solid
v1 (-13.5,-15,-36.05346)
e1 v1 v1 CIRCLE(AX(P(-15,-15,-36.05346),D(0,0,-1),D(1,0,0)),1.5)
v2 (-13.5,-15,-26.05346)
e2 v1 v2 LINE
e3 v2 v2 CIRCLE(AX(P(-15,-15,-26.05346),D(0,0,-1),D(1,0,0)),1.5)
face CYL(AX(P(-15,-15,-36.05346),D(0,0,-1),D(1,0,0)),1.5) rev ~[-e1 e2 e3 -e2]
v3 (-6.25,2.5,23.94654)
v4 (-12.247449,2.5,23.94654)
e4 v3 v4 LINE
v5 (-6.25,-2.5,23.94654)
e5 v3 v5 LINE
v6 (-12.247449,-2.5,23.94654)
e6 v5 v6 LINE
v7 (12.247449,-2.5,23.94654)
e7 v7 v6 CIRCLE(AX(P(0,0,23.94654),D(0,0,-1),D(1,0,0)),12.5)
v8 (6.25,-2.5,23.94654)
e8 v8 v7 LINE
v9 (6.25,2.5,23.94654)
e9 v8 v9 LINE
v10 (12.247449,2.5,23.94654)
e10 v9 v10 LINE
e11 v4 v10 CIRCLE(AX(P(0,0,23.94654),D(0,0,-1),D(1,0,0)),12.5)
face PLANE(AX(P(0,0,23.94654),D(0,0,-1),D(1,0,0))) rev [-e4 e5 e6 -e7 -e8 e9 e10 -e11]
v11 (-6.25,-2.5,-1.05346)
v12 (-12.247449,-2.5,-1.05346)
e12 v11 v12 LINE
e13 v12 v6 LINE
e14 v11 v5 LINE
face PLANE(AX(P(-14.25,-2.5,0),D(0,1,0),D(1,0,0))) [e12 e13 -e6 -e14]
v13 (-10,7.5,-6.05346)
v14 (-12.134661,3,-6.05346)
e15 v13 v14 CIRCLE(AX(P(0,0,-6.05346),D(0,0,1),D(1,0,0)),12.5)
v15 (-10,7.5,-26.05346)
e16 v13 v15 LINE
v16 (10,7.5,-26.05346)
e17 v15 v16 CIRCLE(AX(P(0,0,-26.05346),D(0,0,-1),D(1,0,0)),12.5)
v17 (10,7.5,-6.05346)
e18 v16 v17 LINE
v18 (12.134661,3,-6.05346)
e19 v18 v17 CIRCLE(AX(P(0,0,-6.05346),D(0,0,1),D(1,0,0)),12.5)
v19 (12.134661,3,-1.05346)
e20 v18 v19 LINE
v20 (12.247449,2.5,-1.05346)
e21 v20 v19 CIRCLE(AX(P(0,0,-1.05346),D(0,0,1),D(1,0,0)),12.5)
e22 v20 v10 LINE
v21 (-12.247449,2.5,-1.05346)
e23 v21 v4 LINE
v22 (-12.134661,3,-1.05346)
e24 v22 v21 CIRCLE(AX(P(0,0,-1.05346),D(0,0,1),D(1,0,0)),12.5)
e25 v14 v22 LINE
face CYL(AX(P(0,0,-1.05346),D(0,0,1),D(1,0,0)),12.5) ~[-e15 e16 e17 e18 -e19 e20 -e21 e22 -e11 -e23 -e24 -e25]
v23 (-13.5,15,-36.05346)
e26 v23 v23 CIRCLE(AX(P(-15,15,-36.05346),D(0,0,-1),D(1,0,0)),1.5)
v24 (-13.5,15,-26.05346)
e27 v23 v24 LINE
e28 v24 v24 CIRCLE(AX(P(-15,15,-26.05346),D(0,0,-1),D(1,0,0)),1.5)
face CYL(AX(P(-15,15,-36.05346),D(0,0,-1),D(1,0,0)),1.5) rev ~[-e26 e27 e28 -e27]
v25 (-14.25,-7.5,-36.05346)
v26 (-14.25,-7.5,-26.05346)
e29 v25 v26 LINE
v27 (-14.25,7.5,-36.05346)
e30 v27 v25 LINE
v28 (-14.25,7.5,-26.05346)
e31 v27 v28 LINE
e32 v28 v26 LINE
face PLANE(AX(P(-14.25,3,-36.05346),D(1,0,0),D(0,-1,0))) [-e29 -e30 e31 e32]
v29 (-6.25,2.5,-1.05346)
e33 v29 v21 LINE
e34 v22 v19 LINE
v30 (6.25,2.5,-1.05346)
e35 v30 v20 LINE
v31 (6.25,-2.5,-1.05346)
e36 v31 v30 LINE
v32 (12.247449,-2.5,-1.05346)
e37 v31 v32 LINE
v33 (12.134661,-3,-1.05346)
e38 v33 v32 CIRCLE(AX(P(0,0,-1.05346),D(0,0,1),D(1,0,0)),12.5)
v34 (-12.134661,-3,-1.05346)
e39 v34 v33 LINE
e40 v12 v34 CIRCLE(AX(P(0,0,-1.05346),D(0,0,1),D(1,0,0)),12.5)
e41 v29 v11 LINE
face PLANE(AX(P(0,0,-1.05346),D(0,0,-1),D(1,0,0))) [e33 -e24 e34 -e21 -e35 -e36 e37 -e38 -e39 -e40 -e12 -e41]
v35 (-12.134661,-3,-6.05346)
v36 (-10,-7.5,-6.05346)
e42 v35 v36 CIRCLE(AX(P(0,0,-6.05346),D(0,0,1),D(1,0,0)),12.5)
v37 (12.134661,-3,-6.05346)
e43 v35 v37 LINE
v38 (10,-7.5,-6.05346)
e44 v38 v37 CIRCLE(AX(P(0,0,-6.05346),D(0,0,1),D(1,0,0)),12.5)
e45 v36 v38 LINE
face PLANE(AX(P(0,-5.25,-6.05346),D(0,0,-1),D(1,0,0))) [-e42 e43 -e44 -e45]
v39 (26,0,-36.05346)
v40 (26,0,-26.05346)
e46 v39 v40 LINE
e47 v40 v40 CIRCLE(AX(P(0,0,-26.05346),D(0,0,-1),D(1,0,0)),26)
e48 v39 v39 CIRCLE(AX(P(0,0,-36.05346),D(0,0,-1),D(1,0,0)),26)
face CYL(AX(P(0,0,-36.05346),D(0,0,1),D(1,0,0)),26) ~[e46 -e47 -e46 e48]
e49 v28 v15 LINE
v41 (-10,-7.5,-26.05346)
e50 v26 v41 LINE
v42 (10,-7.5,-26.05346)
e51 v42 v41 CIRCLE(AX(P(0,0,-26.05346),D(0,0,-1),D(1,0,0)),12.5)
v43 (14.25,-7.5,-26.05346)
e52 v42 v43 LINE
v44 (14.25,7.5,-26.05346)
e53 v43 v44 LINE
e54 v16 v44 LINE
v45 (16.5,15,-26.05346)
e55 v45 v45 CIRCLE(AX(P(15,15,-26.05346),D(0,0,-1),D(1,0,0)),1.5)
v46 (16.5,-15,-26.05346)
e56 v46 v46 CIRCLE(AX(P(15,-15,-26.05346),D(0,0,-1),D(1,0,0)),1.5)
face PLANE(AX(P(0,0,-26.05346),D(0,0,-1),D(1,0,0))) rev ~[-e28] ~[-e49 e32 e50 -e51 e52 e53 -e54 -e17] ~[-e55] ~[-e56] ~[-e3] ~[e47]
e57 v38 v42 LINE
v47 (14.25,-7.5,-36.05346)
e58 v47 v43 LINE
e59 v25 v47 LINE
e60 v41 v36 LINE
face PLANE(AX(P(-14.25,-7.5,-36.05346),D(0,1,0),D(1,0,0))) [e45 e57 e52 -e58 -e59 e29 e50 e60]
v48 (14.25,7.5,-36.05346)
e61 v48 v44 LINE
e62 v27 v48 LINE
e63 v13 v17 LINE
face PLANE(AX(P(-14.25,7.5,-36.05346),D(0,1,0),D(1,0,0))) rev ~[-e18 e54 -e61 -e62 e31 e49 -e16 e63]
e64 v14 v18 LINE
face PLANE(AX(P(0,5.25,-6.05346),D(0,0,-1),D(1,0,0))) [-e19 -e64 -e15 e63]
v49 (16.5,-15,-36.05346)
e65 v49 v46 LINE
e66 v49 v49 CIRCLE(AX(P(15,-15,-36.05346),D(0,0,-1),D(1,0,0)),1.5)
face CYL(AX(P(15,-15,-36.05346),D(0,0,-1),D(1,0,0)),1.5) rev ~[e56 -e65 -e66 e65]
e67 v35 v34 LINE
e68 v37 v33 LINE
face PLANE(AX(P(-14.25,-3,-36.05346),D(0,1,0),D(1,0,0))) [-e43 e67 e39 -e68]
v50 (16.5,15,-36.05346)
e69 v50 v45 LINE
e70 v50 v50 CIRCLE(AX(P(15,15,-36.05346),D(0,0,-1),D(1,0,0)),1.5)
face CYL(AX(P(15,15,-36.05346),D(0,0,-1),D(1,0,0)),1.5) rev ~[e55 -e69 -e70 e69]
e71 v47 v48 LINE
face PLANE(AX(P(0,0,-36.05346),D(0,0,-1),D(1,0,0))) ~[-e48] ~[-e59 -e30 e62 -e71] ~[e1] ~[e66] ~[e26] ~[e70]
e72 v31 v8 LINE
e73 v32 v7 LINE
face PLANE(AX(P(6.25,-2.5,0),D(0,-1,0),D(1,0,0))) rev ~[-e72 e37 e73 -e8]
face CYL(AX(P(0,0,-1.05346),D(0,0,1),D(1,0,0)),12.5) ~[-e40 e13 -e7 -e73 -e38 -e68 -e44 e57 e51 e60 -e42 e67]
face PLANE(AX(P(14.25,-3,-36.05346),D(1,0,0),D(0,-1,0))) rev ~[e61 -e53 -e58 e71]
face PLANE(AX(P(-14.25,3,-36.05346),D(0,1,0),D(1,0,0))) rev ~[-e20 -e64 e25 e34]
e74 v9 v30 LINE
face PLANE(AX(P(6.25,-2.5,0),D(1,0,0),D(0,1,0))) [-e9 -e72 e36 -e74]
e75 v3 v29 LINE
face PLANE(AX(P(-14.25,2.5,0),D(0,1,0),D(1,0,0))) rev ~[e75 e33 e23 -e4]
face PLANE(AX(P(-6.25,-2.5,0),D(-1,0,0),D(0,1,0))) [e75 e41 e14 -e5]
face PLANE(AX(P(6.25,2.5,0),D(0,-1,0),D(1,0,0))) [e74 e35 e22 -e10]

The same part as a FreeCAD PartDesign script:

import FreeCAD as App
import Part
import Sketcher

V = App.Vector

doc = App.newDocument("Part")
body = doc.addObject("PartDesign::Body", "Body")

sketch1 = doc.addObject("Sketcher::SketchObject", "Sketch")
body.addObject(sketch1)
sketch1.AttachmentSupport = (doc.XZ_Plane, [""])
sketch1.MapMode = "FlatFace"
sketch1.addGeometry([
    Part.LineSegment(V(0, 24, 0), V(0, -36, 0)),
    Part.LineSegment(V(0, -36, 0), V(26, -36, 0)),
    Part.LineSegment(V(26, -36, 0), V(26, -26, 0)),
    Part.LineSegment(V(26, -26, 0), V(12, -26, 0)),
    Part.LineSegment(V(12, -26, 0), V(12, 24, 0)),
    Part.LineSegment(V(12, 24, 0), V(0, 24, 0)),
], False)
sketch1.addConstraint([
    Sketcher.Constraint("Coincident", 0, 2, 1, 1),
    Sketcher.Constraint("Coincident", 1, 2, 2, 1),
    Sketcher.Constraint("Coincident", 2, 2, 3, 1),
    Sketcher.Constraint("Coincident", 3, 2, 4, 1),
    Sketcher.Constraint("Coincident", 4, 2, 5, 1),
    Sketcher.Constraint("Coincident", 5, 2, 0, 1),
    Sketcher.Constraint("Vertical", 0),
    Sketcher.Constraint("Horizontal", 1),
    Sketcher.Constraint("Vertical", 2),
    Sketcher.Constraint("Horizontal", 3),
    Sketcher.Constraint("Vertical", 4),
    Sketcher.Constraint("Horizontal", 5),
    Sketcher.Constraint("PointOnObject", 0, 2, -2),
    Sketcher.Constraint("DistanceX", 1, 1, 1, 2, 26.0),
    Sketcher.Constraint("DistanceY", 0, 2, 0, 1, 60.0),
    Sketcher.Constraint("DistanceY", 2, 1, 2, 2, 10.0),
    Sketcher.Constraint("DistanceX", 3, 2, 3, 1, 13.5),
    Sketcher.Constraint("DistanceY", 0, 2, -1, 1, 36.05346),
])
revolution = doc.addObject("PartDesign::Revolution", "Revolution")
body.addObject(revolution)
revolution.Profile = sketch1
revolution.ReferenceAxis = (sketch1, ["V_Axis"])
revolution.Angle = 360

sketch2 = doc.addObject("Sketcher::SketchObject", "Sketch001")
body.addObject(sketch2)
sketch2.AttachmentSupport = (doc.XY_Plane, [""])
sketch2.MapMode = "FlatFace"
sketch2.addGeometry([
    Part.LineSegment(V(-14, 2, 0), V(-14, -2, 0)),
    Part.LineSegment(V(-14, -2, 0), V(-6, -2, 0)),
    Part.LineSegment(V(-6, -2, 0), V(-6, 2, 0)),
    Part.LineSegment(V(-6, 2, 0), V(-14, 2, 0)),
    Part.LineSegment(V(6, 2, 0), V(6, -2, 0)),
    Part.LineSegment(V(6, -2, 0), V(14, -2, 0)),
    Part.LineSegment(V(14, -2, 0), V(14, 2, 0)),
    Part.LineSegment(V(14, 2, 0), V(6, 2, 0)),
], False)
sketch2.addConstraint([
    Sketcher.Constraint("Coincident", 0, 2, 1, 1),
    Sketcher.Constraint("Coincident", 1, 2, 2, 1),
    Sketcher.Constraint("Coincident", 2, 2, 3, 1),
    Sketcher.Constraint("Coincident", 3, 2, 0, 1),
    Sketcher.Constraint("Coincident", 4, 2, 5, 1),
    Sketcher.Constraint("Coincident", 5, 2, 6, 1),
    Sketcher.Constraint("Coincident", 6, 2, 7, 1),
    Sketcher.Constraint("Coincident", 7, 2, 4, 1),
    Sketcher.Constraint("Vertical", 0),
    Sketcher.Constraint("Horizontal", 1),
    Sketcher.Constraint("Vertical", 2),
    Sketcher.Constraint("Horizontal", 3),
    Sketcher.Constraint("Vertical", 4),
    Sketcher.Constraint("Horizontal", 5),
    Sketcher.Constraint("Vertical", 6),
    Sketcher.Constraint("Horizontal", 7),
    Sketcher.Constraint("Symmetric", 2, 2, 4, 2, -1, 1),
    Sketcher.Constraint("Symmetric", 0, 2, 6, 2, -1, 1),
    Sketcher.Constraint("Horizontal", 1, 2, 4, 2),
    Sketcher.Constraint("DistanceX", 1, 1, 1, 2, 8.0),
    Sketcher.Constraint("DistanceY", 0, 2, 0, 1, 5.0),
    Sketcher.Constraint("DistanceX", 1, 2, 4, 2, 12.5),
])
pocket1 = doc.addObject("PartDesign::Pocket", "Pocket")
body.addObject(pocket1)
pocket1.Profile = sketch2
pocket1.Length = 75
pocket1.Midplane = True

sketch3 = doc.addObject("Sketcher::SketchObject", "Sketch002")
body.addObject(sketch3)
sketch3.AttachmentSupport = (doc.XY_Plane, [""])
sketch3.MapMode = "FlatFace"
sketch3.AttachmentOffset = App.Placement(V(0, 0, -36.05346), App.Rotation())
sketch3.addGeometry([
    Part.LineSegment(V(-14, -3, 0), V(-14, 3, 0)),
    Part.LineSegment(V(-14, 3, 0), V(14, 3, 0)),
    Part.LineSegment(V(14, 3, 0), V(14, -3, 0)),
    Part.LineSegment(V(14, -3, 0), V(-14, -3, 0)),
], False)
sketch3.addConstraint([
    Sketcher.Constraint("Coincident", 0, 2, 1, 1),
    Sketcher.Constraint("Coincident", 1, 2, 2, 1),
    Sketcher.Constraint("Coincident", 2, 2, 3, 1),
    Sketcher.Constraint("Coincident", 3, 2, 0, 1),
    Sketcher.Constraint("Vertical", 0),
    Sketcher.Constraint("Horizontal", 1),
    Sketcher.Constraint("Vertical", 2),
    Sketcher.Constraint("Horizontal", 3),
    Sketcher.Constraint("Symmetric", 0, 2, 2, 2, -1, 1),
    Sketcher.Constraint("DistanceY", 0, 1, 0, 2, 6.0),
    Sketcher.Constraint("DistanceX", 1, 1, 1, 2, 28.5),
])
pocket2 = doc.addObject("PartDesign::Pocket", "Pocket001")
body.addObject(pocket2)
pocket2.Profile = sketch3
pocket2.Length = 35
pocket2.Reversed = True

sketch4 = doc.addObject("Sketcher::SketchObject", "Sketch003")
body.addObject(sketch4)
sketch4.AttachmentSupport = (doc.XY_Plane, [""])
sketch4.MapMode = "FlatFace"
sketch4.AttachmentOffset = App.Placement(V(0, 0, -36.05346), App.Rotation())
sketch4.addGeometry([
    Part.LineSegment(V(-14.2, -7.5, 0), V(-14.2, -3, 0)),
    Part.LineSegment(V(-14.2, -3, 0), V(14.2, -3, 0)),
    Part.LineSegment(V(14.2, -3, 0), V(14.2, -7.5, 0)),
    Part.LineSegment(V(14.2, -7.5, 0), V(-14.2, -7.5, 0)),
    Part.LineSegment(V(-14.2, 3, 0), V(-14.2, 7.5, 0)),
    Part.LineSegment(V(-14.2, 7.5, 0), V(14.2, 7.5, 0)),
    Part.LineSegment(V(14.2, 7.5, 0), V(14.2, 3, 0)),
    Part.LineSegment(V(14.2, 3, 0), V(-14.2, 3, 0)),
], False)
sketch4.addConstraint([
    Sketcher.Constraint("Coincident", 0, 2, 1, 1),
    Sketcher.Constraint("Coincident", 1, 2, 2, 1),
    Sketcher.Constraint("Coincident", 2, 2, 3, 1),
    Sketcher.Constraint("Coincident", 3, 2, 0, 1),
    Sketcher.Constraint("Coincident", 4, 2, 5, 1),
    Sketcher.Constraint("Coincident", 5, 2, 6, 1),
    Sketcher.Constraint("Coincident", 6, 2, 7, 1),
    Sketcher.Constraint("Coincident", 7, 2, 4, 1),
    Sketcher.Constraint("Vertical", 0),
    Sketcher.Constraint("Horizontal", 1),
    Sketcher.Constraint("Vertical", 2),
    Sketcher.Constraint("Horizontal", 3),
    Sketcher.Constraint("Vertical", 4),
    Sketcher.Constraint("Horizontal", 5),
    Sketcher.Constraint("Vertical", 6),
    Sketcher.Constraint("Horizontal", 7),
    Sketcher.Constraint("Symmetric", 2, 2, 4, 2, -1, 1),
    Sketcher.Constraint("Symmetric", 0, 2, 6, 2, -1, 1),
    Sketcher.Constraint("Vertical", 3, 2, 4, 2),
    Sketcher.Constraint("DistanceX", 1, 1, 1, 2, 28.5),
    Sketcher.Constraint("DistanceY", 0, 1, 0, 2, 4.5),
    Sketcher.Constraint("DistanceY", 0, 2, -1, 1, 3.0),
])
pocket3 = doc.addObject("PartDesign::Pocket", "Pocket002")
body.addObject(pocket3)
pocket3.Profile = sketch4
pocket3.Length = 30
pocket3.Reversed = True

sketch5 = doc.addObject("Sketcher::SketchObject", "Sketch004")
body.addObject(sketch5)
sketch5.AttachmentSupport = (doc.XY_Plane, [""])
sketch5.MapMode = "FlatFace"
sketch5.AttachmentOffset = App.Placement(V(0, 0, -36.05346), App.Rotation())
sketch5.addGeometry([
    Part.LineSegment(V(-14.2, -7.5, 0), V(-14.2, 7.5, 0)),
    Part.LineSegment(V(-14.2, 7.5, 0), V(14.2, 7.5, 0)),
    Part.LineSegment(V(14.2, 7.5, 0), V(14.2, -7.5, 0)),
    Part.LineSegment(V(14.2, -7.5, 0), V(-14.2, -7.5, 0)),
    Part.Circle(V(15, 15, 0), V(0, 0, 1), 1.5),
    Part.Circle(V(-15, 15, 0), V(0, 0, 1), 1.5),
    Part.Circle(V(15, -15, 0), V(0, 0, 1), 1.5),
    Part.Circle(V(-15, -15, 0), V(0, 0, 1), 1.5),
], False)
sketch5.addConstraint([
    Sketcher.Constraint("Coincident", 0, 2, 1, 1),
    Sketcher.Constraint("Coincident", 1, 2, 2, 1),
    Sketcher.Constraint("Coincident", 2, 2, 3, 1),
    Sketcher.Constraint("Coincident", 3, 2, 0, 1),
    Sketcher.Constraint("Vertical", 0),
    Sketcher.Constraint("Horizontal", 1),
    Sketcher.Constraint("Vertical", 2),
    Sketcher.Constraint("Horizontal", 3),
    Sketcher.Constraint("Equal", 4, 5),
    Sketcher.Constraint("Equal", 5, 6),
    Sketcher.Constraint("Equal", 6, 7),
    Sketcher.Constraint("Symmetric", 5, 3, 6, 3, -1, 1),
    Sketcher.Constraint("Symmetric", 4, 3, 7, 3, -1, 1),
    Sketcher.Constraint("Symmetric", 0, 2, 2, 2, -1, 1),
    Sketcher.Constraint("Symmetric", 4, 3, 5, 3, -2),
    Sketcher.Constraint("Diameter", 4, 3.0),
    Sketcher.Constraint("DistanceY", 0, 1, 0, 2, 15.0),
    Sketcher.Constraint("DistanceX", 1, 1, 1, 2, 28.5),
    Sketcher.Constraint("DistanceX", -1, 1, 4, 3, 15.0),
    Sketcher.Constraint("DistanceY", -1, 1, 4, 3, 15.0),
])
pocket4 = doc.addObject("PartDesign::Pocket", "Pocket003")
body.addObject(pocket4)
pocket4.Profile = sketch5
pocket4.Length = 11
pocket4.Reversed = True

doc.recompute()
